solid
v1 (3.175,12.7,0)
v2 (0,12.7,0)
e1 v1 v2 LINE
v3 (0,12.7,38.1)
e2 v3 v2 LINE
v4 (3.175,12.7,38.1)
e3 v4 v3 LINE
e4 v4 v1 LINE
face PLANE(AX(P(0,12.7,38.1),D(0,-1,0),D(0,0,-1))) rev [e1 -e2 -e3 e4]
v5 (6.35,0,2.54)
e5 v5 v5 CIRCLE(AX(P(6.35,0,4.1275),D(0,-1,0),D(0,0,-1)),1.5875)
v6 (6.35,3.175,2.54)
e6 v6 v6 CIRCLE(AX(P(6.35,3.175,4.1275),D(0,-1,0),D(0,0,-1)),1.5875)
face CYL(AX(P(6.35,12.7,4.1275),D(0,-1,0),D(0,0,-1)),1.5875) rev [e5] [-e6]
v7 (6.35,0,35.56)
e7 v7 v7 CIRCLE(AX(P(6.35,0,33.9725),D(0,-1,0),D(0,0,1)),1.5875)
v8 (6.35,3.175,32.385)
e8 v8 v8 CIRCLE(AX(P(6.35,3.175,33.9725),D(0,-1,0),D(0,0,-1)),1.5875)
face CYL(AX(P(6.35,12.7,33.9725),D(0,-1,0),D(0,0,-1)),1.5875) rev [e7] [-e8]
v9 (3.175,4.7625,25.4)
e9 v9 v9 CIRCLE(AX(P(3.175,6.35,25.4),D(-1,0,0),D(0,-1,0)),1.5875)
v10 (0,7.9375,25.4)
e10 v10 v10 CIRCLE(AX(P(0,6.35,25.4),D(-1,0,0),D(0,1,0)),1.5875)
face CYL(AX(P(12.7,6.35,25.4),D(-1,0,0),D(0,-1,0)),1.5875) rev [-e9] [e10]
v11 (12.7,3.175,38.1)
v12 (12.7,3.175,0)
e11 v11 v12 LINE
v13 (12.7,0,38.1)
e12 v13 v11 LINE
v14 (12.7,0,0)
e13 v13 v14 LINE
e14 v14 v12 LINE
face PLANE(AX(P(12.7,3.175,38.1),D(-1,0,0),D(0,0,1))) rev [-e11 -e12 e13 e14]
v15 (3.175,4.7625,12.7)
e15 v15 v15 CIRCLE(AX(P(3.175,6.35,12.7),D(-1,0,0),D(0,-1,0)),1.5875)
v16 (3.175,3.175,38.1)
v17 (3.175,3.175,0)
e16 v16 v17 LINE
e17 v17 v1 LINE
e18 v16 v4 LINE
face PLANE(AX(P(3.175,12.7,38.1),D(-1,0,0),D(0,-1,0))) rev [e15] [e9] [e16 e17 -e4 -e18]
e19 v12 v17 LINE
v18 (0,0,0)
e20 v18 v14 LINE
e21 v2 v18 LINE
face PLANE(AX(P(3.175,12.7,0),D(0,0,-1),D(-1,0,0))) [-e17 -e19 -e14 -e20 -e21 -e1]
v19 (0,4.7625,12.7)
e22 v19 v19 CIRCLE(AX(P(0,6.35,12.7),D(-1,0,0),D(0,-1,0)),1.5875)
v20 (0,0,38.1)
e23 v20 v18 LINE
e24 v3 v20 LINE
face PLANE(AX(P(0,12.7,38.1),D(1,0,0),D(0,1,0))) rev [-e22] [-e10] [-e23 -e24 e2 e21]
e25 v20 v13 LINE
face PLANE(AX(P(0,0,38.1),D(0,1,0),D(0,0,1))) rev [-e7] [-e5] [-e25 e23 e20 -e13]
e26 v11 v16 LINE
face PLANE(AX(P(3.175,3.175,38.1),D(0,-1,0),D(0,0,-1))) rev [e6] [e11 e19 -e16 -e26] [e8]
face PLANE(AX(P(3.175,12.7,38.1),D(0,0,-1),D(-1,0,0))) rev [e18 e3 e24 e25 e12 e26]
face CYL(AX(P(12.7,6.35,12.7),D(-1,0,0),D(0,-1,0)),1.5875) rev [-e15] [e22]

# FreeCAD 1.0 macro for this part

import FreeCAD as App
import Part
import Sketcher
Q = App.Units.Quantity

doc = App.newDocument("Part")
params = doc.addObject("Spreadsheet::Sheet", "Params")
for row, (alias, value) in enumerate([
    ("sketch1_width", "0.5 in"),
    ("sketch1_width2", "0.375 in"),
    ("pad1_length", "1.5 in"),
    ("sketch2_diameter", "0.125 in"),
    ("sketch3_diameter", "0.125 in"),
], start=1):
    params.set(f"A{row}", alias)
    params.set(f"B{row}", "=" + value)
    params.setAlias(f"B{row}", alias)

body = doc.addObject("PartDesign::Body", "Body")

sketch1 = body.newObject("Sketcher::SketchObject", "Sketch")
sketch1.AttachmentSupport = (doc.getObject("XY_Plane"), [""])
sketch1.MapMode = "FlatFace"
sketch1.addGeometry([
    Part.LineSegment(App.Vector(0, 12.7, 0), App.Vector(0, 0, 0)),
    Part.LineSegment(App.Vector(0, 0, 0), App.Vector(12.7, 0, 0)),
    Part.LineSegment(App.Vector(12.7, 0, 0), App.Vector(12.7, 3.2, 0)),
    Part.LineSegment(App.Vector(12.7, 3.2, 0), App.Vector(3.2, 3.2, 0)),
    Part.LineSegment(App.Vector(3.2, 3.2, 0), App.Vector(3.2, 12.7, 0)),
    Part.LineSegment(App.Vector(3.2, 12.7, 0), App.Vector(0, 12.7, 0)),
], False)
sketch1.addConstraint([
    Sketcher.Constraint("Coincident", 0, 2, 1, 1),
    Sketcher.Constraint("Coincident", 1, 2, 2, 1),
    Sketcher.Constraint("Coincident", 2, 2, 3, 1),
    Sketcher.Constraint("Coincident", 3, 2, 4, 1),
    Sketcher.Constraint("Coincident", 4, 2, 5, 1),
    Sketcher.Constraint("Coincident", 5, 2, 0, 1),
    Sketcher.Constraint("Vertical", 0),
    Sketcher.Constraint("Horizontal", 1),
    Sketcher.Constraint("Vertical", 2),
    Sketcher.Constraint("Horizontal", 3),
    Sketcher.Constraint("Vertical", 4),
    Sketcher.Constraint("Horizontal", 5),
    Sketcher.Constraint("Coincident", 0, 2, -1, 1),
    Sketcher.Constraint("Equal", 1, 0),
    Sketcher.Constraint("Equal", 5, 2),
    Sketcher.Constraint("DistanceX", 1, 1, 1, 2, Q("0.5 in")),
    Sketcher.Constraint("DistanceX", 3, 2, 3, 1, Q("0.375 in")),
])
sketch1.setExpression("Constraints[15]", "Params.sketch1_width")
sketch1.setExpression("Constraints[16]", "Params.sketch1_width2")
pad1 = body.newObject("PartDesign::Pad", "Pad")
pad1.Profile = sketch1
pad1.setExpression("Length", "Params.pad1_length")

sketch2 = body.newObject("Sketcher::SketchObject", "Sketch001")
sketch2.AttachmentSupport = (doc.getObject("YZ_Plane"), [""])
sketch2.MapMode = "FlatFace"
sketch2.addGeometry([
    Part.Circle(App.Vector(6.3, 12.7, 0), App.Vector(0, 0, 1), 1.6),
    Part.Circle(App.Vector(6.3, 25.4, 0), App.Vector(0, 0, 1), 1.6),
], False)
sketch2.addConstraint([
    Sketcher.Constraint("Equal", 0, 1),
    Sketcher.Constraint("Vertical", 0, 3, 1, 3),
    Sketcher.Constraint("Diameter", 0, Q("0.125 in")),
    Sketcher.Constraint("DistanceY", -1, 1, 1, 3, Q("1 in")),
    Sketcher.Constraint("DistanceY", -1, 1, 0, 3, Q("0.5 in")),
    Sketcher.Constraint("DistanceX", -1, 1, 0, 3, Q("0.25 in")),
])
sketch2.setExpression("Constraints[2]", "Params.sketch2_diameter")
pocket1 = body.newObject("PartDesign::Pocket", "Pocket")
pocket1.Profile = sketch2
pocket1.Type = "ThroughAll"
pocket1.Reversed = True

sketch3 = body.newObject("Sketcher::SketchObject", "Sketch002")
sketch3.AttachmentSupport = (doc.getObject("XZ_Plane"), [""])
sketch3.MapMode = "FlatFace"
sketch3.addGeometry([
    Part.Circle(App.Vector(6.3, 4.1, 0), App.Vector(0, 0, 1), 1.6),
    Part.Circle(App.Vector(6.3, 34, 0), App.Vector(0, 0, 1), 1.6),
], False)
sketch3.addConstraint([
    Sketcher.Constraint("Equal", 0, 1),
    Sketcher.Constraint("Vertical", 0, 3, 1, 3),
    Sketcher.Constraint("Diameter", 0, Q("0.125 in")),
    Sketcher.Constraint("DistanceX", -1, 1, 0, 3, Q("0.25 in")),
    Sketcher.Constraint("DistanceY", 0, 3, 1, 3, Q("1.175 in")),
    Sketcher.Constraint("DistanceY", -1, 1, 0, 3, Q("0.1625 in")),
])
sketch3.setExpression("Constraints[2]", "Params.sketch3_diameter")
pocket2 = body.newObject("PartDesign::Pocket", "Pocket001")
pocket2.Profile = sketch3
pocket2.Type = "ThroughAll"

doc.recompute()
